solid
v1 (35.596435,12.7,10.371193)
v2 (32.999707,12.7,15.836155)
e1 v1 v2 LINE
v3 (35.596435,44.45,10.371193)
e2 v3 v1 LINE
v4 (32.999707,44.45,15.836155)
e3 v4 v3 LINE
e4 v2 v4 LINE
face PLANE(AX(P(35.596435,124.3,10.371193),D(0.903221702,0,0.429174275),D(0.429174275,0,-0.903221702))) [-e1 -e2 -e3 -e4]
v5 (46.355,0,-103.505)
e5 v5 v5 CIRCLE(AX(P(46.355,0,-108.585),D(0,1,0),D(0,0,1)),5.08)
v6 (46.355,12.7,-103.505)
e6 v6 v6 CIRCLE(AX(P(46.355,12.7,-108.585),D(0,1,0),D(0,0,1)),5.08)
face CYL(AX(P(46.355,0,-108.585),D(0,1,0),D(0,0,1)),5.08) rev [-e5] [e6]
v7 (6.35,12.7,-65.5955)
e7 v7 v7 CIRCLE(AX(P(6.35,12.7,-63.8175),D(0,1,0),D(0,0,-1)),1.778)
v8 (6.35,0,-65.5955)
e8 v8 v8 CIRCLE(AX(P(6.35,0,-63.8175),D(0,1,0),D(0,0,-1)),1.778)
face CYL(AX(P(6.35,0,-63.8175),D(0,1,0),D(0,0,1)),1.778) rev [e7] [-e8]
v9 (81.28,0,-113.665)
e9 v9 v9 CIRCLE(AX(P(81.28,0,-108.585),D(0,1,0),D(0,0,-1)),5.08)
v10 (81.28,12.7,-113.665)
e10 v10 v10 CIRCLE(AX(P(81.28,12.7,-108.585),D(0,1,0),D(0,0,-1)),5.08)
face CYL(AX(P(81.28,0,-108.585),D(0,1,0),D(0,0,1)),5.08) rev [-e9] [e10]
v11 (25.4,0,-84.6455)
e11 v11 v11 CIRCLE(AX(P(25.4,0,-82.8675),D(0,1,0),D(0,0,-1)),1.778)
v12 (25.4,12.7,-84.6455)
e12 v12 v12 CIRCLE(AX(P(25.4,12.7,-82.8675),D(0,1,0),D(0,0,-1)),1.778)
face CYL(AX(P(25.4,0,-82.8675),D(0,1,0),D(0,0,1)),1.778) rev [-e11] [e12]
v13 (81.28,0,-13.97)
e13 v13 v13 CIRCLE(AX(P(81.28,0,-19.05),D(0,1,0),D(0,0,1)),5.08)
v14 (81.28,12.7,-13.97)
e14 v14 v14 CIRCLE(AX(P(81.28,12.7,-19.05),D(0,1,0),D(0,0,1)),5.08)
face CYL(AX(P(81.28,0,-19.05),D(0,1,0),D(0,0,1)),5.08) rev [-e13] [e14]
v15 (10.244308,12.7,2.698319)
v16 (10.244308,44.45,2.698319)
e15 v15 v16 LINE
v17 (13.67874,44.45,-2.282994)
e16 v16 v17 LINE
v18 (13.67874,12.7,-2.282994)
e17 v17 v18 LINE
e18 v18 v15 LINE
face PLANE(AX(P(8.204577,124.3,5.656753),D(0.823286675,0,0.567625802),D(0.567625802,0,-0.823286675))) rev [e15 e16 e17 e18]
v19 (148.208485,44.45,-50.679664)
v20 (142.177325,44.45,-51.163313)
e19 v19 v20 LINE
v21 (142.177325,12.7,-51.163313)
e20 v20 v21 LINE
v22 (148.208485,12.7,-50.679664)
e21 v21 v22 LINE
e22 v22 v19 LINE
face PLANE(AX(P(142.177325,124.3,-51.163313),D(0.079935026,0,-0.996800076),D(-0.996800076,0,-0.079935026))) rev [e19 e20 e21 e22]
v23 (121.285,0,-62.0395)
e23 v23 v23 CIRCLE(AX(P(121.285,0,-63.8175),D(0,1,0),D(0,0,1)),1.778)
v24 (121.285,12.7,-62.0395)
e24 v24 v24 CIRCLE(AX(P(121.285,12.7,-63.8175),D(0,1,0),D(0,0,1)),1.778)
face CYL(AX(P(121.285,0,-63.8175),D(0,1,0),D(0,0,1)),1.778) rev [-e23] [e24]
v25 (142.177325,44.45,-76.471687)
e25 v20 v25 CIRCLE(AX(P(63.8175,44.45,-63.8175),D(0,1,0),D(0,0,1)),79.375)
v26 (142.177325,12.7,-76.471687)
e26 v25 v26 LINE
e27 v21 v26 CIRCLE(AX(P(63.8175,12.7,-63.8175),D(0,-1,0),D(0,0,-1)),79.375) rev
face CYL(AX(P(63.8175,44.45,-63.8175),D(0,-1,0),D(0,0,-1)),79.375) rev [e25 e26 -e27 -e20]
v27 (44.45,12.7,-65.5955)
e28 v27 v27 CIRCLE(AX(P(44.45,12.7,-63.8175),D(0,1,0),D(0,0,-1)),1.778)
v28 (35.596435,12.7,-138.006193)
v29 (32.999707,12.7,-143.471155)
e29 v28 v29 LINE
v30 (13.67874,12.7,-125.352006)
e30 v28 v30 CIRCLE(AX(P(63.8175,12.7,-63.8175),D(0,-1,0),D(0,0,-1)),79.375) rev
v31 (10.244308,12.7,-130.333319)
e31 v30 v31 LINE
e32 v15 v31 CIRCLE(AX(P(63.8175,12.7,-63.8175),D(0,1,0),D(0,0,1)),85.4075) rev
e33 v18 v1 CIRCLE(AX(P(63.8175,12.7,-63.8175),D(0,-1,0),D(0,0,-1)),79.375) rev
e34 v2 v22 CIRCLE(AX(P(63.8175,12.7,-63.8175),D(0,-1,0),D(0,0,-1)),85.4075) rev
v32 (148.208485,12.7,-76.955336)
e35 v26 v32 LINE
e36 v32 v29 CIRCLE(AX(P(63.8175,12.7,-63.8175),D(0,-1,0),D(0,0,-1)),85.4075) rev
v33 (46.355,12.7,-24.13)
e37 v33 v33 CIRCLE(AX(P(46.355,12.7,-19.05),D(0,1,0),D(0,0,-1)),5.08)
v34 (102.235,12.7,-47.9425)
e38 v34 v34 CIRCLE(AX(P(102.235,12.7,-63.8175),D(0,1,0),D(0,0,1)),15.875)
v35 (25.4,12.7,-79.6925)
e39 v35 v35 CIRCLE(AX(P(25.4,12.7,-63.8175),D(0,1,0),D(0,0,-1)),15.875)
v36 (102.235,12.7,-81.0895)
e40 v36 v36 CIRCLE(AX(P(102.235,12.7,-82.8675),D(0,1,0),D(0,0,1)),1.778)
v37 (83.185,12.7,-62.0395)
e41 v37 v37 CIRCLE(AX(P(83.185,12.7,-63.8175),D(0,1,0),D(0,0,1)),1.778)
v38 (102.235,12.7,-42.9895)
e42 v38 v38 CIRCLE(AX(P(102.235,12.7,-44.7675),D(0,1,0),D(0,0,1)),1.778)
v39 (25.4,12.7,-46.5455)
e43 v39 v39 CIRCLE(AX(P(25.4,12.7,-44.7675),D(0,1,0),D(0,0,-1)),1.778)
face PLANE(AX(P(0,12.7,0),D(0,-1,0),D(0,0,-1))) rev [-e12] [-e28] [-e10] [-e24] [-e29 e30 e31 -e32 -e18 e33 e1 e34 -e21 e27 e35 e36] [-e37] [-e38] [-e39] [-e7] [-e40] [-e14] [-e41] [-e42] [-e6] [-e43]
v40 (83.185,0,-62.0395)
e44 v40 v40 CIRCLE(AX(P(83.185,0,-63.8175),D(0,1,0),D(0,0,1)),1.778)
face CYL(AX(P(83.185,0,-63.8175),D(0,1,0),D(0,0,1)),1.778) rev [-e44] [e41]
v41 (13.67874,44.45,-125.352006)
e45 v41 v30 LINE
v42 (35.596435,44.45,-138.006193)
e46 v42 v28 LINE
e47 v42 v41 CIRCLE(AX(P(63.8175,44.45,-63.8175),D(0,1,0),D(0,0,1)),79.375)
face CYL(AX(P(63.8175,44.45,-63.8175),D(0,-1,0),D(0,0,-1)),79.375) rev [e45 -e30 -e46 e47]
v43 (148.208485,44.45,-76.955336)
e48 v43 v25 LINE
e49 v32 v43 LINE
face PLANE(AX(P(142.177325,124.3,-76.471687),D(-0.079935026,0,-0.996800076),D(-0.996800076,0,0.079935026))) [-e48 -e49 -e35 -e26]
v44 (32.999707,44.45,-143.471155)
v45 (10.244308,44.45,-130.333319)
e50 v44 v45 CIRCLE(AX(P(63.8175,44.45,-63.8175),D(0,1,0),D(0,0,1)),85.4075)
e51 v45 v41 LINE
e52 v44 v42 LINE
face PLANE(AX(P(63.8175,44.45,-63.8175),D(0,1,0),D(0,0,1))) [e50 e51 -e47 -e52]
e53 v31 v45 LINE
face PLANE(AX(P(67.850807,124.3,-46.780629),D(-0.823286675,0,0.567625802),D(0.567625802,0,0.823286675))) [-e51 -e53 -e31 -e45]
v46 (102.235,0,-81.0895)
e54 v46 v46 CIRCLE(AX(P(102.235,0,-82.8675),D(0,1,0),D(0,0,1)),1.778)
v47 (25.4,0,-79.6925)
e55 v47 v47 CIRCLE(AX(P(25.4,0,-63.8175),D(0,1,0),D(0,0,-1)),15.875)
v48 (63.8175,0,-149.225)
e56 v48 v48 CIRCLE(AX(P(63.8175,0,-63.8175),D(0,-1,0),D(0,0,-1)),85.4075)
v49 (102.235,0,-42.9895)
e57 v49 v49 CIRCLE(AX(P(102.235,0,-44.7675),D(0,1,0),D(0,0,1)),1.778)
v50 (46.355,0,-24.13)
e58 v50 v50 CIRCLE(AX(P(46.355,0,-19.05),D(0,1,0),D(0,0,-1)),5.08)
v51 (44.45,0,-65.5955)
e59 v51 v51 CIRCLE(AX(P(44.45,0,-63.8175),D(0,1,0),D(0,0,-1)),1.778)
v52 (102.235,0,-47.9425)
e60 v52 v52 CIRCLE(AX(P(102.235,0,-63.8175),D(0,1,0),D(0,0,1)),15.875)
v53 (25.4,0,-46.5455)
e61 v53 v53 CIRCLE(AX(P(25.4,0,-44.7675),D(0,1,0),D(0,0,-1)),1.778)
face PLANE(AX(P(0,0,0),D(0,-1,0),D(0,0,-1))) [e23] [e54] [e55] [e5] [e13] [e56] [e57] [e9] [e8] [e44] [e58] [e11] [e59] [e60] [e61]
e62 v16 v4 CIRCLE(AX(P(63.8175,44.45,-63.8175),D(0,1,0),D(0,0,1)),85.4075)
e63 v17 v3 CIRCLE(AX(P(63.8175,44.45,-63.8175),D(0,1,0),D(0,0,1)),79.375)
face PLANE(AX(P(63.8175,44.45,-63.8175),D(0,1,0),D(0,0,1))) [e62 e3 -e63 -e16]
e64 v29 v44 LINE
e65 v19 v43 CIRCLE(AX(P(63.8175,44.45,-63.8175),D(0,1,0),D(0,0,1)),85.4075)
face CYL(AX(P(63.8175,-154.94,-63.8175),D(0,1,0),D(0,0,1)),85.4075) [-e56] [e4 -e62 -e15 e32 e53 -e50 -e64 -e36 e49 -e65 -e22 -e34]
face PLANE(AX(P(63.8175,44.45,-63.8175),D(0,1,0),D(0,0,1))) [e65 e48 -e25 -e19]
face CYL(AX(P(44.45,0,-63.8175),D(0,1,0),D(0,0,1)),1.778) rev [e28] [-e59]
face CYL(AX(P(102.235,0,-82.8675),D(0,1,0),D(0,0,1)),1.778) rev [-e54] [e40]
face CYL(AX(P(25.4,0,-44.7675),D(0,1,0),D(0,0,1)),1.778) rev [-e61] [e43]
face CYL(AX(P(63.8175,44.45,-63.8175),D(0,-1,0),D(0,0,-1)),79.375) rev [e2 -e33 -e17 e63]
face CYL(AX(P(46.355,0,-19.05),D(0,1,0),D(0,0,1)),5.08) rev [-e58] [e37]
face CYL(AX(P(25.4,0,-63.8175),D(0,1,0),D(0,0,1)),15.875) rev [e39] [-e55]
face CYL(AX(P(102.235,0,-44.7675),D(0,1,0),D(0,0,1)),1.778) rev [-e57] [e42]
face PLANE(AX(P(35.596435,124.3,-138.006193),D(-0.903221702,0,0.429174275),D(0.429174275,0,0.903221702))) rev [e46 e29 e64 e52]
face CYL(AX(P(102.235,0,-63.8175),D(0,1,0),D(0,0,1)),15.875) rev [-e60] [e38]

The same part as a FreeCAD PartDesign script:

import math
import FreeCAD as App
import Part
import Sketcher

V = App.Vector
Q = App.Units.Quantity


def add_polygon(sketch, points):
    """Adds a closed chain of lines whose ends are joined by coincident constraints."""
    first, n = sketch.GeometryCount, len(points)
    for a, b in zip(points, points[1:] + points[:1]):
        sketch.addGeometry(Part.LineSegment(App.Vector(*a, 0), App.Vector(*b, 0)), False)
    for i in range(n):
        sketch.addConstraint(Sketcher.Constraint("Coincident", first + i, 2, first + (i + 1) % n, 1))

doc = App.newDocument("Part")
body = doc.addObject("PartDesign::Body", "Body")

# Sketch on XZ plane
sketch1 = doc.addObject("Sketcher::SketchObject", "Sketch")
body.addObject(sketch1)
sketch1.AttachmentSupport = (doc.XZ_Plane, [""])
sketch1.MapMode = "FlatFace"
add_polygon(sketch1, [(0, -128), (0, 0), (128, 0), (128, -128)])  # lines 0-3
sketch1.addConstraint(Sketcher.Constraint("Vertical", 0))
sketch1.addConstraint(Sketcher.Constraint("Horizontal", 1))
sketch1.addConstraint(Sketcher.Constraint("Vertical", 2))
sketch1.addConstraint(Sketcher.Constraint("Horizontal", 3))
sketch1.addConstraint(Sketcher.Constraint("Coincident", 0, 2, -1, 1))
sketch1.addConstraint(Sketcher.Constraint("Equal", 3, 0))
sketch1.addConstraint(Sketcher.Constraint("DistanceX", 1, 1, 1, 2, Q("5.025 in")))
pad1 = doc.addObject("PartDesign::Pad", "Pad")
body.addObject(pad1)
pad1.Profile = sketch1
pad1.Length = Q("0.5 in")
pad1.Reversed = True

# Sketch on XZ plane
sketch2 = doc.addObject("Sketcher::SketchObject", "Sketch001")
body.addObject(sketch2)
sketch2.AttachmentSupport = (doc.XZ_Plane, [""])
sketch2.MapMode = "FlatFace"
sketch2.AttachmentOffset = App.Placement(V(0, 0, -0.5 * 25.4), App.Rotation())
sketch2.addGeometry(Part.Circle(V(64, -64, 0), V(0, 0, 1), 86), False)
sketch2.addConstraint(Sketcher.Constraint("Diameter", 0, Q("6.75 in")))
sketch2.addConstraint(Sketcher.Constraint("DistanceX", -1, 1, 0, 3, Q("2.5125 in")))
sketch2.addConstraint(Sketcher.Constraint("DistanceY", 0, 3, -1, 1, Q("2.5125 in")))
pad2 = doc.addObject("PartDesign::Pad", "Pad001")
body.addObject(pad2)
pad2.Profile = sketch2
pad2.Length = Q("0.5 in")

# Sketch on XZ plane
sketch3 = doc.addObject("Sketcher::SketchObject", "Sketch002")
body.addObject(sketch3)
sketch3.AttachmentSupport = (doc.XZ_Plane, [""])
sketch3.MapMode = "FlatFace"
sketch3.AttachmentOffset = App.Placement(V(0, 0, -0.5 * 25.4), App.Rotation())
sketch3.addGeometry(Part.Circle(V(64, -64, 0), V(0, 0, 1), 95), False)
sketch3.addGeometry(Part.Circle(V(64, -64, 0), V(0, 0, 1), 85), False)
sketch3.addConstraint(Sketcher.Constraint("Coincident", 1, 3, 0, 3))
sketch3.addConstraint(Sketcher.Constraint("Diameter", 0, Q("7.5 in")))
sketch3.addConstraint(Sketcher.Constraint("Diameter", 1, Q("6.725 in")))
sketch3.addConstraint(Sketcher.Constraint("DistanceX", -1, 1, 0, 3, Q("2.5125 in")))
sketch3.addConstraint(Sketcher.Constraint("DistanceY", 0, 3, -1, 1, Q("2.5125 in")))
pocket1 = doc.addObject("PartDesign::Pocket", "Pocket")
body.addObject(pocket1)
pocket1.Profile = sketch3
pocket1.Length = Q("6.6 in")
pocket1.Reversed = True

# Sketch on XZ plane
sketch4 = doc.addObject("Sketcher::SketchObject", "Sketch003")
body.addObject(sketch4)
sketch4.AttachmentSupport = (doc.XZ_Plane, [""])
sketch4.MapMode = "FlatFace"
sketch4.AttachmentOffset = App.Placement(V(0, 0, -0.25 * 25.4), App.Rotation())
sketch4.addGeometry(Part.Circle(V(64, -64, 0), V(0, 0, 1), 85), False)
sketch4.addGeometry(Part.Circle(V(64, -64, 0), V(0, 0, 1), 79), False)
sketch4.addConstraint(Sketcher.Constraint("Coincident", 1, 3, 0, 3))
sketch4.addConstraint(Sketcher.Constraint("Diameter", 1, Q("6.25 in")))
sketch4.addConstraint(Sketcher.Constraint("Diameter", 0, Q("6.725 in")))
sketch4.addConstraint(Sketcher.Constraint("DistanceX", -1, 1, 0, 3, Q("2.5125 in")))
sketch4.addConstraint(Sketcher.Constraint("DistanceY", 0, 3, -1, 1, Q("2.5125 in")))
pad3 = doc.addObject("PartDesign::Pad", "Pad002")
body.addObject(pad3)
pad3.Profile = sketch4
pad3.Length = Q("1.5 in")
pad3.Reversed = True

# Sketch on XZ plane
sketch5 = doc.addObject("Sketcher::SketchObject", "Sketch004")
body.addObject(sketch5)
sketch5.AttachmentSupport = (doc.XZ_Plane, [""])
sketch5.MapMode = "FlatFace"
sketch5.AttachmentOffset = App.Placement(V(0, 0, -0.5 * 25.4), App.Rotation())
sketch5.addGeometry(Part.Circle(V(102.2, -63.8, 0), V(0, 0, 1), 15.9), False)
sketch5.addGeometry(Part.Circle(V(102.2, -82.9, 0), V(0, 0, 1), 1.8), False)
sketch5.addGeometry(Part.Circle(V(25.4, -63.8, 0), V(0, 0, 1), 15.9), False)
sketch5.addGeometry(Part.Circle(V(121.3, -63.8, 0), V(0, 0, 1), 1.8), False)
sketch5.addGeometry(Part.Circle(V(102.2, -44.8, 0), V(0, 0, 1), 1.8), False)
sketch5.addGeometry(Part.Circle(V(83.2, -63.8, 0), V(0, 0, 1), 1.8), False)
sketch5.addGeometry(Part.Circle(V(25.4, -82.9, 0), V(0, 0, 1), 1.8), False)
sketch5.addGeometry(Part.Circle(V(6.3, -63.8, 0), V(0, 0, 1), 1.8), False)
sketch5.addGeometry(Part.Circle(V(25.4, -44.8, 0), V(0, 0, 1), 1.8), False)
sketch5.addGeometry(Part.Circle(V(44.5, -63.8, 0), V(0, 0, 1), 1.8), False)
sketch5.addConstraint(Sketcher.Constraint("Equal", 0, 2))
sketch5.addConstraint(Sketcher.Constraint("Equal", 1, 3))
sketch5.addConstraint(Sketcher.Constraint("Equal", 3, 4))
sketch5.addConstraint(Sketcher.Constraint("Equal", 4, 5))
sketch5.addConstraint(Sketcher.Constraint("Equal", 5, 6))
sketch5.addConstraint(Sketcher.Constraint("Equal", 6, 7))
sketch5.addConstraint(Sketcher.Constraint("Equal", 7, 8))
sketch5.addConstraint(Sketcher.Constraint("Equal", 8, 9))
sketch5.addConstraint(Sketcher.Constraint("Horizontal", 0, 3, 2, 3))
sketch5.addConstraint(Sketcher.Constraint("Horizontal", 2, 3, 3, 3))
sketch5.addConstraint(Sketcher.Constraint("Horizontal", 3, 3, 5, 3))
sketch5.addConstraint(Sketcher.Constraint("Horizontal", 1, 3, 6, 3))
sketch5.addConstraint(Sketcher.Constraint("Horizontal", 5, 3, 7, 3))
sketch5.addConstraint(Sketcher.Constraint("Horizontal", 4, 3, 8, 3))
sketch5.addConstraint(Sketcher.Constraint("Horizontal", 7, 3, 9, 3))
sketch5.addConstraint(Sketcher.Constraint("Vertical", 0, 3, 1, 3))
sketch5.addConstraint(Sketcher.Constraint("Vertical", 1, 3, 4, 3))
sketch5.addConstraint(Sketcher.Constraint("Vertical", 2, 3, 6, 3))
sketch5.addConstraint(Sketcher.Constraint("Vertical", 6, 3, 8, 3))
sketch5.addConstraint(Sketcher.Constraint("Diameter", 0, Q("1.25 in")))
sketch5.addConstraint(Sketcher.Constraint("Diameter", 1, Q("0.14 in")))
sketch5.addConstraint(Sketcher.Constraint("DistanceX", -1, 1, 2, 3, Q("1 in")))
sketch5.addConstraint(Sketcher.Constraint("DistanceY", 1, 3, 4, 3, Q("1.5 in")))
sketch5.addConstraint(Sketcher.Constraint("DistanceX", 5, 3, 3, 3, Q("1.5 in")))
sketch5.addConstraint(Sketcher.Constraint("DistanceX", 7, 3, 9, 3, Q("1.5 in")))
sketch5.addConstraint(Sketcher.Constraint("DistanceX", -1, 1, 7, 3, Q("0.25 in")))
sketch5.addConstraint(Sketcher.Constraint("DistanceY", 1, 3, 0, 3, Q("0.75 in")))
sketch5.addConstraint(Sketcher.Constraint("DistanceX", 0, 3, 3, 3, Q("0.75 in")))
sketch5.addConstraint(Sketcher.Constraint("DistanceX", -1, 1, 0, 3, Q("4.025 in")))
sketch5.addConstraint(Sketcher.Constraint("DistanceY", 0, 3, -1, 1, Q("2.5125 in")))
pocket2 = doc.addObject("PartDesign::Pocket", "Pocket001")
body.addObject(pocket2)
pocket2.Profile = sketch5
pocket2.Type = "ThroughAll"
pocket2.Reversed = True

# Sketch on XZ plane
sketch6 = doc.addObject("Sketcher::SketchObject", "Sketch005")
body.addObject(sketch6)
sketch6.AttachmentSupport = (doc.XZ_Plane, [""])
sketch6.MapMode = "FlatFace"
sketch6.AttachmentOffset = App.Placement(V(0, 0, -0.5 * 25.4), App.Rotation())
sketch6.addGeometry(Part.Circle(V(46, -109, 0), V(0, 0, 1), 5), False)
sketch6.addGeometry(Part.Circle(V(81, -109, 0), V(0, 0, 1), 5), False)
sketch6.addGeometry(Part.Circle(V(81, -19, 0), V(0, 0, 1), 5), False)
sketch6.addGeometry(Part.Circle(V(46, -19, 0), V(0, 0, 1), 5), False)
sketch6.addConstraint(Sketcher.Constraint("Equal", 0, 1))
sketch6.addConstraint(Sketcher.Constraint("Equal", 1, 2))
sketch6.addConstraint(Sketcher.Constraint("Equal", 2, 3))
sketch6.addConstraint(Sketcher.Constraint("Horizontal", 0, 3, 1, 3))
sketch6.addConstraint(Sketcher.Constraint("Horizontal", 2, 3, 3, 3))
sketch6.addConstraint(Sketcher.Constraint("Vertical", 1, 3, 2, 3))
sketch6.addConstraint(Sketcher.Constraint("Vertical", 0, 3, 3, 3))
sketch6.addConstraint(Sketcher.Constraint("Diameter", 0, Q("0.4 in")))
sketch6.addConstraint(Sketcher.Constraint("DistanceX", -1, 1, 1, 3, Q("3.2 in")))
sketch6.addConstraint(Sketcher.Constraint("DistanceY", 2, 3, -1, 1, Q("0.75 in")))
sketch6.addConstraint(Sketcher.Constraint("DistanceX", -1, 1, 0, 3, Q("1.825 in")))
sketch6.addConstraint(Sketcher.Constraint("DistanceY", 0, 3, -1, 1, Q("4.275 in")))
pocket3 = doc.addObject("PartDesign::Pocket", "Pocket002")
body.addObject(pocket3)
pocket3.Profile = sketch6
pocket3.Type = "ThroughAll"
pocket3.Reversed = True

# Sketch on XZ plane
sketch7 = doc.addObject("Sketcher::SketchObject", "Sketch006")
body.addObject(sketch7)
sketch7.AttachmentSupport = (doc.XZ_Plane, [""])
sketch7.MapMode = "FlatFace"
sketch7.AttachmentOffset = App.Placement(V(0, 0, -0.5 * 25.4), App.Rotation())
sketch7.addGeometry(Part.LineSegment(V(14, -125, 0), V(8, -134, 0)), False)
sketch7.addGeometry(Part.LineSegment(V(8, -134, 0), V(-19, -125, 0)), False)
sketch7.addGeometry(Part.LineSegment(V(-19, -125, 0), V(-49, -60, 0)), False)
sketch7.addGeometry(Part.LineSegment(V(-49, -60, 0), V(-10, -7, 0)), False)
sketch7.addGeometry(Part.LineSegment(V(-10, -7, 0), V(7, 7, 0)), False)
sketch7.addGeometry(Part.LineSegment(V(7, 7, 0), V(14, -2, 0)), False)
sketch7.addGeometry(Part.ArcOfCircle(Part.Circle(V(64, -64, 0), V(0, 0, 1), 79), math.radians(110.83), math.radians(129.17)), False)
sketch7.addGeometry(Part.LineSegment(V(36, 10, 0), V(31, 20, 0)), False)
sketch7.addGeometry(Part.LineSegment(V(31, 20, 0), V(52, 39, 0)), False)
sketch7.addGeometry(Part.LineSegment(V(52, 39, 0), V(123, 32, 0)), False)
sketch7.addGeometry(Part.LineSegment(V(123, 32, 0), V(150, -28, 0)), False)
sketch7.addGeometry(Part.LineSegment(V(150, -28, 0), V(154, -50, 0)), False)
sketch7.addGeometry(Part.LineSegment(V(154, -50, 0), V(142, -51, 0)), False)
sketch7.addGeometry(Part.ArcOfCircle(Part.Circle(V(64, -64, 0), V(0, 0, 1), 79), math.radians(-9.17), math.radians(9.17)), False)
sketch7.addGeometry(Part.LineSegment(V(142, -76, 0), V(153, -77, 0)), False)
sketch7.addGeometry(Part.LineSegment(V(153, -77, 0), V(159, -105, 0)), False)
sketch7.addGeometry(Part.LineSegment(V(159, -105, 0), V(117, -163, 0)), False)
sketch7.addGeometry(Part.LineSegment(V(117, -163, 0), V(52, -156, 0)), False)
sketch7.addGeometry(Part.LineSegment(V(52, -156, 0), V(31, -149, 0)), False)
sketch7.addGeometry(Part.LineSegment(V(31, -149, 0), V(36, -138, 0)), False)
sketch7.addGeometry(Part.ArcOfCircle(Part.Circle(V(64, -64, 0), V(0, 0, 1), 79), math.radians(-129.17), math.radians(-110.83)), False)
sketch7.addConstraint(Sketcher.Constraint("Coincident", 0, 2, 1, 1))
sketch7.addConstraint(Sketcher.Constraint("Coincident", 1, 2, 2, 1))
sketch7.addConstraint(Sketcher.Constraint("Coincident", 2, 2, 3, 1))
sketch7.addConstraint(Sketcher.Constraint("Coincident", 3, 2, 4, 1))
sketch7.addConstraint(Sketcher.Constraint("Coincident", 4, 2, 5, 1))
sketch7.addConstraint(Sketcher.Constraint("Coincident", 5, 2, 6, 2))
sketch7.addConstraint(Sketcher.Constraint("Coincident", 6, 1, 7, 1))
sketch7.addConstraint(Sketcher.Constraint("Coincident", 7, 2, 8, 1))
sketch7.addConstraint(Sketcher.Constraint("Coincident", 8, 2, 9, 1))
sketch7.addConstraint(Sketcher.Constraint("Coincident", 9, 2, 10, 1))
sketch7.addConstraint(Sketcher.Constraint("Coincident", 10, 2, 11, 1))
sketch7.addConstraint(Sketcher.Constraint("Coincident", 11, 2, 12, 1))
sketch7.addConstraint(Sketcher.Constraint("Coincident", 12, 2, 13, 2))
sketch7.addConstraint(Sketcher.Constraint("Coincident", 13, 1, 14, 1))
sketch7.addConstraint(Sketcher.Constraint("Coincident", 14, 2, 15, 1))
sketch7.addConstraint(Sketcher.Constraint("Coincident", 15, 2, 16, 1))
sketch7.addConstraint(Sketcher.Constraint("Coincident", 16, 2, 17, 1))
sketch7.addConstraint(Sketcher.Constraint("Coincident", 17, 2, 18, 1))
sketch7.addConstraint(Sketcher.Constraint("Coincident", 18, 2, 19, 1))
sketch7.addConstraint(Sketcher.Constraint("Coincident", 19, 2, 20, 2))
sketch7.addConstraint(Sketcher.Constraint("Coincident", 20, 1, 0, 1))
sketch7.addConstraint(Sketcher.Constraint("Coincident", 13, 3, 6, 3))
sketch7.addConstraint(Sketcher.Constraint("Coincident", 20, 3, 6, 3))
sketch7.addConstraint(Sketcher.Constraint("Equal", 6, 13))
sketch7.addConstraint(Sketcher.Constraint("Equal", 13, 20))
sketch7.addConstraint(Sketcher.Constraint("Vertical", 12, 2, 13, 1))
sketch7.addConstraint(Sketcher.Constraint("Vertical", 6, 1, 19, 2))
sketch7.addConstraint(Sketcher.Constraint("Vertical", 5, 2, 20, 1))
sketch7.addConstraint(Sketcher.Constraint("Equal", 0, 7))
sketch7.addConstraint(Sketcher.Constraint("Equal", 1, 8))
sketch7.addConstraint(Sketcher.Constraint("Equal", 2, 9))
sketch7.addConstraint(Sketcher.Constraint("Equal", 3, 10))
sketch7.addConstraint(Sketcher.Constraint("Equal", 4, 11))
sketch7.addConstraint(Sketcher.Constraint("Equal", 5, 12))
sketch7.addConstraint(Sketcher.Constraint("Equal", 7, 14))
sketch7.addConstraint(Sketcher.Constraint("Equal", 8, 15))
sketch7.addConstraint(Sketcher.Constraint("Equal", 9, 16))
sketch7.addConstraint(Sketcher.Constraint("Equal", 10, 17))
sketch7.addConstraint(Sketcher.Constraint("Equal", 11, 18))
sketch7.addConstraint(Sketcher.Constraint("Equal", 12, 19))
sketch7.addConstraint(Sketcher.Constraint("Radius", 6, Q("3.125 in")))
sketch7.addConstraint(Sketcher.Constraint("DistanceX", -1, 1, 6, 3, Q("2.5125 in")))
sketch7.addConstraint(Sketcher.Constraint("DistanceY", 6, 3, -1, 1, Q("2.5125 in")))
sketch7.addConstraint(Sketcher.Constraint("DistanceX", -1, 1, 14, 2, Q("6.0210998 in")))
sketch7.addConstraint(Sketcher.Constraint("DistanceX", 1, 2, 3, 2, Q("0.3694002 in")))
sketch7.addConstraint(Sketcher.Constraint("DistanceY", 2, 2, 3, 2, 53.345301))
sketch7.addConstraint(Sketcher.Constraint("DistanceX", 18, 2, 17, 2, 20.992601))
sketch7.addConstraint(Sketcher.Constraint("DistanceY", 16, 2, 18, 2, 14.3558))
sketch7.addConstraint(Sketcher.Constraint("Distance", 1, 28.262981))
sketch7.addConstraint(Sketcher.Constraint("DistanceX", -1, 1, 0, 2, 7.552271))
sketch7.addConstraint(Sketcher.Constraint("DistanceY", 0, 2, -1, 1, 134.23786))
sketch7.addConstraint(Sketcher.Constraint("DistanceX", 1, 2, -1, 1, 19.267108))
sketch7.addConstraint(Sketcher.Constraint("DistanceX", 2, 2, -1, 1, 48.796958))
sketch7.addConstraint(Sketcher.Constraint("DistanceY", 2, 2, -1, 1, 60.39777))
sketch7.addConstraint(Sketcher.Constraint("DistanceX", -1, 1, 5, 2, 13.67874))
sketch7.addConstraint(Sketcher.Constraint("DistanceX", -1, 1, 8, 2, 52.096531))
sketch7.addConstraint(Sketcher.Constraint("DistanceX", -1, 1, 10, 2, 149.828381))
sketch7.addConstraint(Sketcher.Constraint("DistanceX", -1, 1, 11, 2, 153.977461))
sketch7.addConstraint(Sketcher.Constraint("DistanceY", 11, 2, -1, 1, 50.217041))
sketch7.addConstraint(Sketcher.Constraint("DistanceX", 3, 2, 4, 2, 16.84352))
sketch7.addConstraint(Sketcher.Constraint("DistanceY", 5, 2, 4, 2, 9.746082))
sketch7.addConstraint(Sketcher.Constraint("DistanceX", 4, 2, 6, 1, 28.637259))
sketch7.addConstraint(Sketcher.Constraint("DistanceX", 7, 2, 6, 1, 4.632141))
sketch7.addConstraint(Sketcher.Constraint("DistanceX", 14, 2, 15, 2, 5.687142))
pocket4 = doc.addObject("PartDesign::Pocket", "Pocket003")
body.addObject(pocket4)
pocket4.Profile = sketch7
pocket4.Length = 111.6

doc.recompute()
